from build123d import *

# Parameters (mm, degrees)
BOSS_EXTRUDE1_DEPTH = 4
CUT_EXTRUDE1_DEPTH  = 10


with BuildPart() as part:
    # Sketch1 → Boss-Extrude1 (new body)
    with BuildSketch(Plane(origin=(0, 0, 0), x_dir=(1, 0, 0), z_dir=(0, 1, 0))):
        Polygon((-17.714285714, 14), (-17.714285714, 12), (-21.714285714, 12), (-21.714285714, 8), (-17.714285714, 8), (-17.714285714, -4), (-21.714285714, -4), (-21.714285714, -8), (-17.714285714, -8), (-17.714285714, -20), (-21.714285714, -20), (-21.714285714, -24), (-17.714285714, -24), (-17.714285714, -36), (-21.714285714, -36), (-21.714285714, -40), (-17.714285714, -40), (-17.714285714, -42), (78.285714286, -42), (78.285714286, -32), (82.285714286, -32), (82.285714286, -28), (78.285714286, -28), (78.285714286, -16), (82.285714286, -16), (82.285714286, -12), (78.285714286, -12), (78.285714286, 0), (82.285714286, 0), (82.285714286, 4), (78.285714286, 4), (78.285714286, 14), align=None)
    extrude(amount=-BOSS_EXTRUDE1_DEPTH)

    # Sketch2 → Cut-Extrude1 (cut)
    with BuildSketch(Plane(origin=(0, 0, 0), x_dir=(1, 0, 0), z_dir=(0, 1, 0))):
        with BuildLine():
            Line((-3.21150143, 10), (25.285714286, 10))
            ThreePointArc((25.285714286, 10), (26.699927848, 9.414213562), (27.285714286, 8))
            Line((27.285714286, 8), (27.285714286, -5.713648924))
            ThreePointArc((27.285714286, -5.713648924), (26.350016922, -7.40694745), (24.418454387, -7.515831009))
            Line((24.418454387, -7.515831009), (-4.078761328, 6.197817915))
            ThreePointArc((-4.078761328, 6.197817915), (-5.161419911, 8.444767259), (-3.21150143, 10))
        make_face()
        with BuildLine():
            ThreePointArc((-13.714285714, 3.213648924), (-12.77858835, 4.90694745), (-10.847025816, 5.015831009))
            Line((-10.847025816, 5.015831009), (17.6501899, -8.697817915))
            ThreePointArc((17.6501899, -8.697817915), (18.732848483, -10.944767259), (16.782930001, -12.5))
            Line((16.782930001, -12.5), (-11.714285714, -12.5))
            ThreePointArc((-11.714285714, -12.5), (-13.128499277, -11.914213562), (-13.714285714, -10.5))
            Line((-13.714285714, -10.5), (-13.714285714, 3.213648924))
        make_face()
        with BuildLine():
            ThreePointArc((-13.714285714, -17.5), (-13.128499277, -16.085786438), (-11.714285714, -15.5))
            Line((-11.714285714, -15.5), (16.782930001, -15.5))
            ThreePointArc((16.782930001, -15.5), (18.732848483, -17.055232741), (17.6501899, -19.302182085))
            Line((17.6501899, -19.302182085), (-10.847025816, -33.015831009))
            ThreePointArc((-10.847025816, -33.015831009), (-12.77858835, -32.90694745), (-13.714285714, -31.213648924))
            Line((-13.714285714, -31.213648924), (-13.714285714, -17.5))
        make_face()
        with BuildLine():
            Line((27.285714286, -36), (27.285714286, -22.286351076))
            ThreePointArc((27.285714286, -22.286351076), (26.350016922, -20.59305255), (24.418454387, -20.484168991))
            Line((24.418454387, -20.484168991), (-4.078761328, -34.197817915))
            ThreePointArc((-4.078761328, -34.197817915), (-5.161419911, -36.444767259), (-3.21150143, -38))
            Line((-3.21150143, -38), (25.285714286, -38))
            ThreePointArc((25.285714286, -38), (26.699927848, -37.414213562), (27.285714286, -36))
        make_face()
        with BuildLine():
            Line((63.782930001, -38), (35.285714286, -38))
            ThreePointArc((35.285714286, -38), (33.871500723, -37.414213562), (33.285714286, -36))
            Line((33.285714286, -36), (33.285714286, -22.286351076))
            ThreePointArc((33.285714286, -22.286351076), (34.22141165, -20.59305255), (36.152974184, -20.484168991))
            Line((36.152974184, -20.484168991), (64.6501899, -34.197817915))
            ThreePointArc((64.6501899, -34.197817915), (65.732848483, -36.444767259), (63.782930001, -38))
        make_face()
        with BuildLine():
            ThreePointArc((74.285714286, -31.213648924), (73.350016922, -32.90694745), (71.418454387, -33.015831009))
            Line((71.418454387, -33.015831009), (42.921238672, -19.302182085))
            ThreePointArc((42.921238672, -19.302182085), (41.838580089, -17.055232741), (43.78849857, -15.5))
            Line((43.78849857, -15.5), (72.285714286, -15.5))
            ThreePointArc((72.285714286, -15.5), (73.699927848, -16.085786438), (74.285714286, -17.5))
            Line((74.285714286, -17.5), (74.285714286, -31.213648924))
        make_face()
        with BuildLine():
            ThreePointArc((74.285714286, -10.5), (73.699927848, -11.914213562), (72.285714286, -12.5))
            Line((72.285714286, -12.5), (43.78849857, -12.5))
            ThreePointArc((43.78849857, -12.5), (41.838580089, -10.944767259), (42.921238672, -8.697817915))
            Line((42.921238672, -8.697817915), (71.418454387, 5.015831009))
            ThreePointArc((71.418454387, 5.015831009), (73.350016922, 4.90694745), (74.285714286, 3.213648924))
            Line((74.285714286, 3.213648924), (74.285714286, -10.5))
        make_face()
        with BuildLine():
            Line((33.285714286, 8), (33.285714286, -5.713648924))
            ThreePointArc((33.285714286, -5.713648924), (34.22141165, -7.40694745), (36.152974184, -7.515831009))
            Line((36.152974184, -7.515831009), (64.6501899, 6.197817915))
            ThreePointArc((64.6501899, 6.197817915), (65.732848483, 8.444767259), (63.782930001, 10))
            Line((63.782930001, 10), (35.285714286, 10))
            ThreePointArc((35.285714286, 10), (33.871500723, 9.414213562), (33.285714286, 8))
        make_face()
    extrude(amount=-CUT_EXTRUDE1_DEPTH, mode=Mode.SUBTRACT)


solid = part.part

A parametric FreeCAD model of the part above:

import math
import FreeCAD as App
import Part
import Sketcher

V = App.Vector

doc = App.newDocument("Part")
body = doc.addObject("PartDesign::Body", "Body")

sketch1 = body.newObject("Sketcher::SketchObject", "Sketch")
sketch1.AttachmentSupport = (doc.getObject("XZ_Plane"), [""])
sketch1.MapMode = "FlatFace"
sketch1.addGeometry([
    Part.LineSegment(V(-17.714286, -14, 0), V(-17.714286, -12, 0)),
    Part.LineSegment(V(-17.714286, -12, 0), V(-21.714286, -12, 0)),
    Part.LineSegment(V(-21.714286, -12, 0), V(-21.714286, -8, 0)),
    Part.LineSegment(V(-21.714286, -8, 0), V(-17.714286, -8, 0)),
    Part.LineSegment(V(-17.714286, -8, 0), V(-17.714286, 4, 0)),
    Part.LineSegment(V(-17.714286, 4, 0), V(-21.714286, 4, 0)),
    Part.LineSegment(V(-21.714286, 4, 0), V(-21.714286, 8, 0)),
    Part.LineSegment(V(-21.714286, 8, 0), V(-17.714286, 8, 0)),
    Part.LineSegment(V(-17.714286, 8, 0), V(-17.714286, 20, 0)),
    Part.LineSegment(V(-17.714286, 20, 0), V(-21.714286, 20, 0)),
    Part.LineSegment(V(-21.714286, 20, 0), V(-21.714286, 24, 0)),
    Part.LineSegment(V(-21.714286, 24, 0), V(-17.714286, 24, 0)),
    Part.LineSegment(V(-17.714286, 24, 0), V(-17.714286, 36, 0)),
    Part.LineSegment(V(-17.714286, 36, 0), V(-21.714286, 36, 0)),
    Part.LineSegment(V(-21.714286, 36, 0), V(-21.714286, 40, 0)),
    Part.LineSegment(V(-21.714286, 40, 0), V(-17.714286, 40, 0)),
    Part.LineSegment(V(-17.714286, 40, 0), V(-17.714286, 42, 0)),
    Part.LineSegment(V(-17.714286, 42, 0), V(78.285714, 42, 0)),
    Part.LineSegment(V(78.285714, 42, 0), V(78.285714, 32, 0)),
    Part.LineSegment(V(78.285714, 32, 0), V(82.285714, 32, 0)),
    Part.LineSegment(V(82.285714, 32, 0), V(82.285714, 28, 0)),
    Part.LineSegment(V(82.285714, 28, 0), V(78.285714, 28, 0)),
    Part.LineSegment(V(78.285714, 28, 0), V(78.285714, 16, 0)),
    Part.LineSegment(V(78.285714, 16, 0), V(82.285714, 16, 0)),
    Part.LineSegment(V(82.285714, 16, 0), V(82.285714, 12, 0)),
    Part.LineSegment(V(82.285714, 12, 0), V(78.285714, 12, 0)),
    Part.LineSegment(V(78.285714, 12, 0), V(78.285714, 0, 0)),
    Part.LineSegment(V(78.285714, 0, 0), V(82.285714, 0, 0)),
    Part.LineSegment(V(82.285714, 0, 0), V(82.285714, -4, 0)),
    Part.LineSegment(V(82.285714, -4, 0), V(78.285714, -4, 0)),
    Part.LineSegment(V(78.285714, -4, 0), V(78.285714, -14, 0)),
    Part.LineSegment(V(78.285714, -14, 0), V(-17.714286, -14, 0)),
], False)
sketch1.addConstraint([
    Sketcher.Constraint("Coincident", 0, 2, 1, 1),
    Sketcher.Constraint("Coincident", 1, 2, 2, 1),
    Sketcher.Constraint("Coincident", 2, 2, 3, 1),
    Sketcher.Constraint("Coincident", 3, 2, 4, 1),
    Sketcher.Constraint("Coincident", 4, 2, 5, 1),
    Sketcher.Constraint("Coincident", 5, 2, 6, 1),
    Sketcher.Constraint("Coincident", 6, 2, 7, 1),
    Sketcher.Constraint("Coincident", 7, 2, 8, 1),
    Sketcher.Constraint("Coincident", 8, 2, 9, 1),
    Sketcher.Constraint("Coincident", 9, 2, 10, 1),
    Sketcher.Constraint("Coincident", 10, 2, 11, 1),
    Sketcher.Constraint("Coincident", 11, 2, 12, 1),
    Sketcher.Constraint("Coincident", 12, 2, 13, 1),
    Sketcher.Constraint("Coincident", 13, 2, 14, 1),
    Sketcher.Constraint("Coincident", 14, 2, 15, 1),
    Sketcher.Constraint("Coincident", 15, 2, 16, 1),
    Sketcher.Constraint("Coincident", 16, 2, 17, 1),
    Sketcher.Constraint("Coincident", 17, 2, 18, 1),
    Sketcher.Constraint("Coincident", 18, 2, 19, 1),
    Sketcher.Constraint("Coincident", 19, 2, 20, 1),
    Sketcher.Constraint("Coincident", 20, 2, 21, 1),
    Sketcher.Constraint("Coincident", 21, 2, 22, 1),
    Sketcher.Constraint("Coincident", 22, 2, 23, 1),
    Sketcher.Constraint("Coincident", 23, 2, 24, 1),
    Sketcher.Constraint("Coincident", 24, 2, 25, 1),
    Sketcher.Constraint("Coincident", 25, 2, 26, 1),
    Sketcher.Constraint("Coincident", 26, 2, 27, 1),
    Sketcher.Constraint("Coincident", 27, 2, 28, 1),
    Sketcher.Constraint("Coincident", 28, 2, 29, 1),
    Sketcher.Constraint("Coincident", 29, 2, 30, 1),
    Sketcher.Constraint("Coincident", 30, 2, 31, 1),
    Sketcher.Constraint("Coincident", 31, 2, 0, 1),
    Sketcher.Constraint("Vertical", 0),
    Sketcher.Constraint("Horizontal", 1),
    Sketcher.Constraint("Vertical", 2),
    Sketcher.Constraint("Horizontal", 3),
    Sketcher.Constraint("Vertical", 4),
    Sketcher.Constraint("Horizontal", 5),
    Sketcher.Constraint("Vertical", 6),
    Sketcher.Constraint("Horizontal", 7),
    Sketcher.Constraint("Vertical", 8),
    Sketcher.Constraint("Horizontal", 9),
    Sketcher.Constraint("Vertical", 10),
    Sketcher.Constraint("Horizontal", 11),
    Sketcher.Constraint("Vertical", 12),
    Sketcher.Constraint("Horizontal", 13),
    Sketcher.Constraint("Vertical", 14),
    Sketcher.Constraint("Horizontal", 15),
    Sketcher.Constraint("Vertical", 16),
    Sketcher.Constraint("Horizontal", 17),
    Sketcher.Constraint("Vertical", 18),
    Sketcher.Constraint("Horizontal", 19),
    Sketcher.Constraint("Vertical", 20),
    Sketcher.Constraint("Horizontal", 21),
    Sketcher.Constraint("Vertical", 22),
    Sketcher.Constraint("Horizontal", 23),
    Sketcher.Constraint("Vertical", 24),
    Sketcher.Constraint("Horizontal", 25),
    Sketcher.Constraint("Vertical", 26),
    Sketcher.Constraint("Horizontal", 27),
    Sketcher.Constraint("Vertical", 28),
    Sketcher.Constraint("Horizontal", 29),
    Sketcher.Constraint("Vertical", 30),
    Sketcher.Constraint("Horizontal", 31),
    Sketcher.Constraint("Symmetric", 2, 2, 6, 2, -1),
    Sketcher.Constraint("PointOnObject", 26, 2, -1),
    Sketcher.Constraint("Vertical", 0, 2, 3, 2),
    Sketcher.Constraint("Vertical", 4, 2, 7, 2),
    Sketcher.Constraint("Vertical", 6, 2, 9, 2),
    Sketcher.Constraint("Vertical", 8, 2, 11, 2),
    Sketcher.Constraint("Vertical", 10, 2, 13, 2),
    Sketcher.Constraint("Vertical", 12, 2, 15, 2),
    Sketcher.Constraint("Vertical", 18, 2, 21, 2),
    Sketcher.Constraint("Vertical", 20, 2, 23, 2),
    Sketcher.Constraint("Vertical", 22, 2, 25, 2),
    Sketcher.Constraint("Vertical", 24, 2, 27, 2),
    Sketcher.Constraint("Vertical", 26, 2, 29, 2),
    Sketcher.Constraint("Equal", 15, 19),
    Sketcher.Constraint("Equal", 29, 2),
    Sketcher.Constraint("Equal", 2, 6),
    Sketcher.Constraint("Equal", 4, 8),
    Sketcher.Constraint("Equal", 6, 10),
    Sketcher.Constraint("Equal", 8, 12),
    Sketcher.Constraint("Equal", 10, 14),
    Sketcher.Constraint("Equal", 0, 16),
    Sketcher.Constraint("Equal", 14, 20),
    Sketcher.Constraint("Equal", 12, 22),
    Sketcher.Constraint("Equal", 20, 24),
    Sketcher.Constraint("Equal", 22, 26),
    Sketcher.Constraint("Equal", 24, 28),
    Sketcher.Constraint("DistanceX", 1, 2, 1, 1, 4.0),
    Sketcher.Constraint("DistanceX", 17, 1, 17, 2, 96.0),
    Sketcher.Constraint("DistanceY", 0, 1, 0, 2, 2.0),
    Sketcher.Constraint("DistanceY", 4, 1, 4, 2, 12.0),
    Sketcher.Constraint("DistanceX", 0, 2, -1, 1, 17.714286),
])
pad1 = body.newObject("PartDesign::Pad", "Pad")
pad1.Profile = sketch1
pad1.Length = 4

sketch2 = body.newObject("Sketcher::SketchObject", "Sketch001")
sketch2.AttachmentSupport = (doc.getObject("XZ_Plane"), [""])
sketch2.MapMode = "FlatFace"
sketch2.addGeometry([
    Part.LineSegment(V(25.285714, -10, 0), V(-3.211501, -10, 0)),
    Part.ArcOfCircle(Part.Circle(V(-3.211501, -8, 0), V(0, 0, 1), 2), math.radians(115.698147), math.radians(270)),
    Part.LineSegment(V(-4.078761, -6.197818, 0), V(24.418454, 7.515831, 0)),
    Part.ArcOfCircle(Part.Circle(V(25.285714, 5.713649, 0), V(0, 0, 1), 2), math.radians(0), math.radians(115.698147)),
    Part.LineSegment(V(27.285714, 5.713649, 0), V(27.285714, -8, 0)),
    Part.ArcOfCircle(Part.Circle(V(25.285714, -8, 0), V(0, 0, 1), 2), math.radians(-90), math.radians(0)),
    Part.ArcOfCircle(Part.Circle(V(-11.714286, -3.213649, 0), V(0, 0, 1), 2), math.radians(180), math.radians(295.698147)),
    Part.LineSegment(V(-13.714286, -3.213649, 0), V(-13.714286, 10.5, 0)),
    Part.ArcOfCircle(Part.Circle(V(-11.714286, 10.5, 0), V(0, 0, 1), 2), math.radians(90), math.radians(180)),
    Part.LineSegment(V(-11.714286, 12.5, 0), V(16.78293, 12.5, 0)),
    Part.ArcOfCircle(Part.Circle(V(16.78293, 10.5, 0), V(0, 0, 1), 2), math.radians(-64.301853), math.radians(90)),
    Part.LineSegment(V(17.65019, 8.697818, 0), V(-10.847026, -5.015831, 0)),
    Part.ArcOfCircle(Part.Circle(V(-11.714286, 17.5, 0), V(0, 0, 1), 2), math.radians(180), math.radians(270)),
    Part.LineSegment(V(-13.714286, 17.5, 0), V(-13.714286, 31.213649, 0)),
    Part.ArcOfCircle(Part.Circle(V(-11.714286, 31.213649, 0), V(0, 0, 1), 2), math.radians(64.301853), math.radians(180)),
    Part.LineSegment(V(-10.847026, 33.015831, 0), V(17.65019, 19.302182, 0)),
    Part.ArcOfCircle(Part.Circle(V(16.78293, 17.5, 0), V(0, 0, 1), 2), math.radians(-90), math.radians(64.301853)),
    Part.LineSegment(V(16.78293, 15.5, 0), V(-11.714286, 15.5, 0)),
    Part.LineSegment(V(27.285714, 36, 0), V(27.285714, 22.286351, 0)),
    Part.ArcOfCircle(Part.Circle(V(25.285714, 22.286351, 0), V(0, 0, 1), 2), math.radians(-115.698147), math.radians(0)),
    Part.LineSegment(V(24.418454, 20.484169, 0), V(-4.078761, 34.197818, 0)),
    Part.ArcOfCircle(Part.Circle(V(-3.211501, 36, 0), V(0, 0, 1), 2), math.radians(90), math.radians(244.301853)),
    Part.LineSegment(V(-3.211501, 38, 0), V(25.285714, 38, 0)),
    Part.ArcOfCircle(Part.Circle(V(25.285714, 36, 0), V(0, 0, 1), 2), math.radians(0), math.radians(90)),
    Part.LineSegment(V(35.285714, 38, 0), V(63.78293, 38, 0)),
    Part.ArcOfCircle(Part.Circle(V(63.78293, 36, 0), V(0, 0, 1), 2), math.radians(-64.301853), math.radians(90)),
    Part.LineSegment(V(64.65019, 34.197818, 0), V(36.152974, 20.484169, 0)),
    Part.ArcOfCircle(Part.Circle(V(35.285714, 22.286351, 0), V(0, 0, 1), 2), math.radians(180), math.radians(295.698147)),
    Part.LineSegment(V(33.285714, 22.286351, 0), V(33.285714, 36, 0)),
    Part.ArcOfCircle(Part.Circle(V(35.285714, 36, 0), V(0, 0, 1), 2), math.radians(90), math.radians(180)),
    Part.ArcOfCircle(Part.Circle(V(72.285714, 31.213649, 0), V(0, 0, 1), 2), math.radians(0), math.radians(115.698147)),
    Part.LineSegment(V(74.285714, 31.213649, 0), V(74.285714, 17.5, 0)),
    Part.ArcOfCircle(Part.Circle(V(72.285714, 17.5, 0), V(0, 0, 1), 2), math.radians(-90), math.radians(0)),
    Part.LineSegment(V(72.285714, 15.5, 0), V(43.788499, 15.5, 0)),
    Part.ArcOfCircle(Part.Circle(V(43.788499, 17.5, 0), V(0, 0, 1), 2), math.radians(115.698147), math.radians(270)),
    Part.LineSegment(V(42.921239, 19.302182, 0), V(71.418454, 33.015831, 0)),
    Part.ArcOfCircle(Part.Circle(V(72.285714, 10.5, 0), V(0, 0, 1), 2), math.radians(0), math.radians(90)),
    Part.LineSegment(V(74.285714, 10.5, 0), V(74.285714, -3.213649, 0)),
    Part.ArcOfCircle(Part.Circle(V(72.285714, -3.213649, 0), V(0, 0, 1), 2), math.radians(-115.698147), math.radians(0)),
    Part.LineSegment(V(71.418454, -5.015831, 0), V(42.921239, 8.697818, 0)),
    Part.ArcOfCircle(Part.Circle(V(43.788499, 10.5, 0), V(0, 0, 1), 2), math.radians(90), math.radians(244.301853)),
    Part.LineSegment(V(43.788499, 12.5, 0), V(72.285714, 12.5, 0)),
    Part.LineSegment(V(33.285714, -8, 0), V(33.285714, 5.713649, 0)),
    Part.ArcOfCircle(Part.Circle(V(35.285714, 5.713649, 0), V(0, 0, 1), 2), math.radians(64.301853), math.radians(180)),
    Part.LineSegment(V(36.152974, 7.515831, 0), V(64.65019, -6.197818, 0)),
    Part.ArcOfCircle(Part.Circle(V(63.78293, -8, 0), V(0, 0, 1), 2), math.radians(-90), math.radians(64.301853)),
    Part.LineSegment(V(63.78293, -10, 0), V(35.285714, -10, 0)),
    Part.ArcOfCircle(Part.Circle(V(35.285714, -8, 0), V(0, 0, 1), 2), math.radians(180), math.radians(270)),
], False)
sketch2.addConstraint([
    Sketcher.Constraint("Tangent", 0, 2, 1, 2),
    Sketcher.Constraint("Tangent", 1, 1, 2, 1),
    Sketcher.Constraint("Tangent", 2, 2, 3, 2),
    Sketcher.Constraint("Tangent", 3, 1, 4, 1),
    Sketcher.Constraint("Tangent", 4, 2, 5, 2),
    Sketcher.Constraint("Tangent", 5, 1, 0, 1),
    Sketcher.Constraint("Tangent", 6, 1, 7, 1),
    Sketcher.Constraint("Tangent", 7, 2, 8, 2),
    Sketcher.Constraint("Tangent", 8, 1, 9, 1),
    Sketcher.Constraint("Tangent", 9, 2, 10, 2),
    Sketcher.Constraint("Tangent", 10, 1, 11, 1),
    Sketcher.Constraint("Tangent", 11, 2, 6, 2),
    Sketcher.Constraint("Tangent", 12, 1, 13, 1),
    Sketcher.Constraint("Tangent", 13, 2, 14, 2),
    Sketcher.Constraint("Tangent", 14, 1, 15, 1),
    Sketcher.Constraint("Tangent", 15, 2, 16, 2),
    Sketcher.Constraint("Tangent", 16, 1, 17, 1),
    Sketcher.Constraint("Tangent", 17, 2, 12, 2),
    Sketcher.Constraint("Tangent", 18, 2, 19, 2),
    Sketcher.Constraint("Tangent", 19, 1, 20, 1),
    Sketcher.Constraint("Tangent", 20, 2, 21, 2),
    Sketcher.Constraint("Tangent", 21, 1, 22, 1),
    Sketcher.Constraint("Tangent", 22, 2, 23, 2),
    Sketcher.Constraint("Tangent", 23, 1, 18, 1),
    Sketcher.Constraint("Tangent", 24, 2, 25, 2),
    Sketcher.Constraint("Tangent", 25, 1, 26, 1),
    Sketcher.Constraint("Tangent", 26, 2, 27, 2),
    Sketcher.Constraint("Tangent", 27, 1, 28, 1),
    Sketcher.Constraint("Tangent", 28, 2, 29, 2),
    Sketcher.Constraint("Tangent", 29, 1, 24, 1),
    Sketcher.Constraint("Tangent", 30, 1, 31, 1),
    Sketcher.Constraint("Tangent", 31, 2, 32, 2),
    Sketcher.Constraint("Tangent", 32, 1, 33, 1),
    Sketcher.Constraint("Tangent", 33, 2, 34, 2),
    Sketcher.Constraint("Tangent", 34, 1, 35, 1),
    Sketcher.Constraint("Tangent", 35, 2, 30, 2),
    Sketcher.Constraint("Tangent", 36, 1, 37, 1),
    Sketcher.Constraint("Tangent", 37, 2, 38, 2),
    Sketcher.Constraint("Tangent", 38, 1, 39, 1),
    Sketcher.Constraint("Tangent", 39, 2, 40, 2),
    Sketcher.Constraint("Tangent", 40, 1, 41, 1),
    Sketcher.Constraint("Tangent", 41, 2, 36, 2),
    Sketcher.Constraint("Tangent", 42, 2, 43, 2),
    Sketcher.Constraint("Tangent", 43, 1, 44, 1),
    Sketcher.Constraint("Tangent", 44, 2, 45, 2),
    Sketcher.Constraint("Tangent", 45, 1, 46, 1),
    Sketcher.Constraint("Tangent", 46, 2, 47, 2),
    Sketcher.Constraint("Tangent", 47, 1, 42, 1),
    Sketcher.Constraint("Horizontal", 0),
    Sketcher.Constraint("Vertical", 4),
    Sketcher.Constraint("Vertical", 7),
    Sketcher.Constraint("Horizontal", 9),
    Sketcher.Constraint("Vertical", 13),
    Sketcher.Constraint("Horizontal", 17),
    Sketcher.Constraint("Vertical", 18),
    Sketcher.Constraint("Horizontal", 22),
    Sketcher.Constraint("Horizontal", 24),
    Sketcher.Constraint("Vertical", 28),
    Sketcher.Constraint("Vertical", 31),
    Sketcher.Constraint("Horizontal", 33),
    Sketcher.Constraint("Vertical", 37),
    Sketcher.Constraint("Horizontal", 41),
    Sketcher.Constraint("Vertical", 42),
    Sketcher.Constraint("Horizontal", 46),
    Sketcher.Constraint("Equal", 1, 3),
    Sketcher.Constraint("Equal", 3, 5),
    Sketcher.Constraint("Equal", 5, 6),
    Sketcher.Constraint("Equal", 6, 8),
    Sketcher.Constraint("Equal", 8, 10),
    Sketcher.Constraint("Equal", 10, 12),
    Sketcher.Constraint("Equal", 12, 14),
    Sketcher.Constraint("Equal", 14, 16),
    Sketcher.Constraint("Equal", 16, 19),
    Sketcher.Constraint("Equal", 19, 21),
    Sketcher.Constraint("Equal", 21, 23),
    Sketcher.Constraint("Equal", 23, 25),
    Sketcher.Constraint("Equal", 25, 27),
    Sketcher.Constraint("Equal", 27, 29),
    Sketcher.Constraint("Equal", 29, 30),
    Sketcher.Constraint("Equal", 30, 32),
    Sketcher.Constraint("Equal", 32, 34),
    Sketcher.Constraint("Equal", 34, 36),
    Sketcher.Constraint("Equal", 36, 38),
    Sketcher.Constraint("Equal", 38, 40),
    Sketcher.Constraint("Equal", 40, 43),
    Sketcher.Constraint("Equal", 43, 45),
    Sketcher.Constraint("Equal", 45, 47),
    Sketcher.Constraint("Parallel", 2, 11),
    Sketcher.Constraint("Parallel", 15, 20),
    Sketcher.Constraint("Parallel", 11, 26),
    Sketcher.Constraint("Parallel", 26, 35),
    Sketcher.Constraint("Parallel", 20, 39),
    Sketcher.Constraint("Parallel", 39, 44),
    Sketcher.Constraint("Horizontal", 23, 3, 25, 3),
    Sketcher.Constraint("Horizontal", 19, 3, 27, 3),
    Sketcher.Constraint("Horizontal", 14, 3, 30, 3),
    Sketcher.Constraint("Horizontal", 16, 3, 32, 3),
    Sketcher.Constraint("Horizontal", 10, 3, 36, 3),
    Sketcher.Constraint("Horizontal", 6, 3, 38, 3),
    Sketcher.Constraint("Horizontal", 3, 3, 43, 3),
    Sketcher.Constraint("Horizontal", 5, 3, 45, 3),
    Sketcher.Constraint("Horizontal", 20, 2, 25, 1),
    Sketcher.Constraint("Vertical", 8, 3, 12, 3),
    Sketcher.Constraint("Vertical", 10, 3, 16, 3),
    Sketcher.Constraint("Vertical", 5, 3, 19, 3),
    Sketcher.Constraint("Vertical", 1, 3, 21, 3),
    Sketcher.Constraint("Vertical", 32, 3, 36, 3),
    Sketcher.Constraint("Vertical", 29, 3, 43, 3),
    Sketcher.Constraint("Equal", 0, 9),
    Sketcher.Constraint("Radius", 1, 2.0),
    Sketcher.Constraint("DistanceY", 1, 3, -1, 1, 8.0),
    Sketcher.Constraint("DistanceY", -1, 1, 21, 3, 36.0),
    Sketcher.Constraint("DistanceY", -1, 1, 8, 3, 10.5),
    Sketcher.Constraint("DistanceY", -1, 1, 12, 3, 17.5),
    Sketcher.Constraint("DistanceY", 4, 2, 4, 1, 13.713649),
    Sketcher.Constraint("DistanceX", 1, 3, -1, 1, 3.211501),
    Sketcher.Constraint("DistanceX", -1, 1, 34, 3, 43.788499),
    Sketcher.Constraint("DistanceX", 0, 2, 0, 1, 28.497216),
    Sketcher.Constraint("DistanceX", -1, 1, 10, 3, 16.78293),
    Sketcher.Constraint("DistanceX", -1, 1, 25, 3, 63.78293),
])
pocket1 = body.newObject("PartDesign::Pocket", "Pocket")
pocket1.Profile = sketch2
pocket1.Length = 10
pocket1.Reversed = True

doc.recompute()
